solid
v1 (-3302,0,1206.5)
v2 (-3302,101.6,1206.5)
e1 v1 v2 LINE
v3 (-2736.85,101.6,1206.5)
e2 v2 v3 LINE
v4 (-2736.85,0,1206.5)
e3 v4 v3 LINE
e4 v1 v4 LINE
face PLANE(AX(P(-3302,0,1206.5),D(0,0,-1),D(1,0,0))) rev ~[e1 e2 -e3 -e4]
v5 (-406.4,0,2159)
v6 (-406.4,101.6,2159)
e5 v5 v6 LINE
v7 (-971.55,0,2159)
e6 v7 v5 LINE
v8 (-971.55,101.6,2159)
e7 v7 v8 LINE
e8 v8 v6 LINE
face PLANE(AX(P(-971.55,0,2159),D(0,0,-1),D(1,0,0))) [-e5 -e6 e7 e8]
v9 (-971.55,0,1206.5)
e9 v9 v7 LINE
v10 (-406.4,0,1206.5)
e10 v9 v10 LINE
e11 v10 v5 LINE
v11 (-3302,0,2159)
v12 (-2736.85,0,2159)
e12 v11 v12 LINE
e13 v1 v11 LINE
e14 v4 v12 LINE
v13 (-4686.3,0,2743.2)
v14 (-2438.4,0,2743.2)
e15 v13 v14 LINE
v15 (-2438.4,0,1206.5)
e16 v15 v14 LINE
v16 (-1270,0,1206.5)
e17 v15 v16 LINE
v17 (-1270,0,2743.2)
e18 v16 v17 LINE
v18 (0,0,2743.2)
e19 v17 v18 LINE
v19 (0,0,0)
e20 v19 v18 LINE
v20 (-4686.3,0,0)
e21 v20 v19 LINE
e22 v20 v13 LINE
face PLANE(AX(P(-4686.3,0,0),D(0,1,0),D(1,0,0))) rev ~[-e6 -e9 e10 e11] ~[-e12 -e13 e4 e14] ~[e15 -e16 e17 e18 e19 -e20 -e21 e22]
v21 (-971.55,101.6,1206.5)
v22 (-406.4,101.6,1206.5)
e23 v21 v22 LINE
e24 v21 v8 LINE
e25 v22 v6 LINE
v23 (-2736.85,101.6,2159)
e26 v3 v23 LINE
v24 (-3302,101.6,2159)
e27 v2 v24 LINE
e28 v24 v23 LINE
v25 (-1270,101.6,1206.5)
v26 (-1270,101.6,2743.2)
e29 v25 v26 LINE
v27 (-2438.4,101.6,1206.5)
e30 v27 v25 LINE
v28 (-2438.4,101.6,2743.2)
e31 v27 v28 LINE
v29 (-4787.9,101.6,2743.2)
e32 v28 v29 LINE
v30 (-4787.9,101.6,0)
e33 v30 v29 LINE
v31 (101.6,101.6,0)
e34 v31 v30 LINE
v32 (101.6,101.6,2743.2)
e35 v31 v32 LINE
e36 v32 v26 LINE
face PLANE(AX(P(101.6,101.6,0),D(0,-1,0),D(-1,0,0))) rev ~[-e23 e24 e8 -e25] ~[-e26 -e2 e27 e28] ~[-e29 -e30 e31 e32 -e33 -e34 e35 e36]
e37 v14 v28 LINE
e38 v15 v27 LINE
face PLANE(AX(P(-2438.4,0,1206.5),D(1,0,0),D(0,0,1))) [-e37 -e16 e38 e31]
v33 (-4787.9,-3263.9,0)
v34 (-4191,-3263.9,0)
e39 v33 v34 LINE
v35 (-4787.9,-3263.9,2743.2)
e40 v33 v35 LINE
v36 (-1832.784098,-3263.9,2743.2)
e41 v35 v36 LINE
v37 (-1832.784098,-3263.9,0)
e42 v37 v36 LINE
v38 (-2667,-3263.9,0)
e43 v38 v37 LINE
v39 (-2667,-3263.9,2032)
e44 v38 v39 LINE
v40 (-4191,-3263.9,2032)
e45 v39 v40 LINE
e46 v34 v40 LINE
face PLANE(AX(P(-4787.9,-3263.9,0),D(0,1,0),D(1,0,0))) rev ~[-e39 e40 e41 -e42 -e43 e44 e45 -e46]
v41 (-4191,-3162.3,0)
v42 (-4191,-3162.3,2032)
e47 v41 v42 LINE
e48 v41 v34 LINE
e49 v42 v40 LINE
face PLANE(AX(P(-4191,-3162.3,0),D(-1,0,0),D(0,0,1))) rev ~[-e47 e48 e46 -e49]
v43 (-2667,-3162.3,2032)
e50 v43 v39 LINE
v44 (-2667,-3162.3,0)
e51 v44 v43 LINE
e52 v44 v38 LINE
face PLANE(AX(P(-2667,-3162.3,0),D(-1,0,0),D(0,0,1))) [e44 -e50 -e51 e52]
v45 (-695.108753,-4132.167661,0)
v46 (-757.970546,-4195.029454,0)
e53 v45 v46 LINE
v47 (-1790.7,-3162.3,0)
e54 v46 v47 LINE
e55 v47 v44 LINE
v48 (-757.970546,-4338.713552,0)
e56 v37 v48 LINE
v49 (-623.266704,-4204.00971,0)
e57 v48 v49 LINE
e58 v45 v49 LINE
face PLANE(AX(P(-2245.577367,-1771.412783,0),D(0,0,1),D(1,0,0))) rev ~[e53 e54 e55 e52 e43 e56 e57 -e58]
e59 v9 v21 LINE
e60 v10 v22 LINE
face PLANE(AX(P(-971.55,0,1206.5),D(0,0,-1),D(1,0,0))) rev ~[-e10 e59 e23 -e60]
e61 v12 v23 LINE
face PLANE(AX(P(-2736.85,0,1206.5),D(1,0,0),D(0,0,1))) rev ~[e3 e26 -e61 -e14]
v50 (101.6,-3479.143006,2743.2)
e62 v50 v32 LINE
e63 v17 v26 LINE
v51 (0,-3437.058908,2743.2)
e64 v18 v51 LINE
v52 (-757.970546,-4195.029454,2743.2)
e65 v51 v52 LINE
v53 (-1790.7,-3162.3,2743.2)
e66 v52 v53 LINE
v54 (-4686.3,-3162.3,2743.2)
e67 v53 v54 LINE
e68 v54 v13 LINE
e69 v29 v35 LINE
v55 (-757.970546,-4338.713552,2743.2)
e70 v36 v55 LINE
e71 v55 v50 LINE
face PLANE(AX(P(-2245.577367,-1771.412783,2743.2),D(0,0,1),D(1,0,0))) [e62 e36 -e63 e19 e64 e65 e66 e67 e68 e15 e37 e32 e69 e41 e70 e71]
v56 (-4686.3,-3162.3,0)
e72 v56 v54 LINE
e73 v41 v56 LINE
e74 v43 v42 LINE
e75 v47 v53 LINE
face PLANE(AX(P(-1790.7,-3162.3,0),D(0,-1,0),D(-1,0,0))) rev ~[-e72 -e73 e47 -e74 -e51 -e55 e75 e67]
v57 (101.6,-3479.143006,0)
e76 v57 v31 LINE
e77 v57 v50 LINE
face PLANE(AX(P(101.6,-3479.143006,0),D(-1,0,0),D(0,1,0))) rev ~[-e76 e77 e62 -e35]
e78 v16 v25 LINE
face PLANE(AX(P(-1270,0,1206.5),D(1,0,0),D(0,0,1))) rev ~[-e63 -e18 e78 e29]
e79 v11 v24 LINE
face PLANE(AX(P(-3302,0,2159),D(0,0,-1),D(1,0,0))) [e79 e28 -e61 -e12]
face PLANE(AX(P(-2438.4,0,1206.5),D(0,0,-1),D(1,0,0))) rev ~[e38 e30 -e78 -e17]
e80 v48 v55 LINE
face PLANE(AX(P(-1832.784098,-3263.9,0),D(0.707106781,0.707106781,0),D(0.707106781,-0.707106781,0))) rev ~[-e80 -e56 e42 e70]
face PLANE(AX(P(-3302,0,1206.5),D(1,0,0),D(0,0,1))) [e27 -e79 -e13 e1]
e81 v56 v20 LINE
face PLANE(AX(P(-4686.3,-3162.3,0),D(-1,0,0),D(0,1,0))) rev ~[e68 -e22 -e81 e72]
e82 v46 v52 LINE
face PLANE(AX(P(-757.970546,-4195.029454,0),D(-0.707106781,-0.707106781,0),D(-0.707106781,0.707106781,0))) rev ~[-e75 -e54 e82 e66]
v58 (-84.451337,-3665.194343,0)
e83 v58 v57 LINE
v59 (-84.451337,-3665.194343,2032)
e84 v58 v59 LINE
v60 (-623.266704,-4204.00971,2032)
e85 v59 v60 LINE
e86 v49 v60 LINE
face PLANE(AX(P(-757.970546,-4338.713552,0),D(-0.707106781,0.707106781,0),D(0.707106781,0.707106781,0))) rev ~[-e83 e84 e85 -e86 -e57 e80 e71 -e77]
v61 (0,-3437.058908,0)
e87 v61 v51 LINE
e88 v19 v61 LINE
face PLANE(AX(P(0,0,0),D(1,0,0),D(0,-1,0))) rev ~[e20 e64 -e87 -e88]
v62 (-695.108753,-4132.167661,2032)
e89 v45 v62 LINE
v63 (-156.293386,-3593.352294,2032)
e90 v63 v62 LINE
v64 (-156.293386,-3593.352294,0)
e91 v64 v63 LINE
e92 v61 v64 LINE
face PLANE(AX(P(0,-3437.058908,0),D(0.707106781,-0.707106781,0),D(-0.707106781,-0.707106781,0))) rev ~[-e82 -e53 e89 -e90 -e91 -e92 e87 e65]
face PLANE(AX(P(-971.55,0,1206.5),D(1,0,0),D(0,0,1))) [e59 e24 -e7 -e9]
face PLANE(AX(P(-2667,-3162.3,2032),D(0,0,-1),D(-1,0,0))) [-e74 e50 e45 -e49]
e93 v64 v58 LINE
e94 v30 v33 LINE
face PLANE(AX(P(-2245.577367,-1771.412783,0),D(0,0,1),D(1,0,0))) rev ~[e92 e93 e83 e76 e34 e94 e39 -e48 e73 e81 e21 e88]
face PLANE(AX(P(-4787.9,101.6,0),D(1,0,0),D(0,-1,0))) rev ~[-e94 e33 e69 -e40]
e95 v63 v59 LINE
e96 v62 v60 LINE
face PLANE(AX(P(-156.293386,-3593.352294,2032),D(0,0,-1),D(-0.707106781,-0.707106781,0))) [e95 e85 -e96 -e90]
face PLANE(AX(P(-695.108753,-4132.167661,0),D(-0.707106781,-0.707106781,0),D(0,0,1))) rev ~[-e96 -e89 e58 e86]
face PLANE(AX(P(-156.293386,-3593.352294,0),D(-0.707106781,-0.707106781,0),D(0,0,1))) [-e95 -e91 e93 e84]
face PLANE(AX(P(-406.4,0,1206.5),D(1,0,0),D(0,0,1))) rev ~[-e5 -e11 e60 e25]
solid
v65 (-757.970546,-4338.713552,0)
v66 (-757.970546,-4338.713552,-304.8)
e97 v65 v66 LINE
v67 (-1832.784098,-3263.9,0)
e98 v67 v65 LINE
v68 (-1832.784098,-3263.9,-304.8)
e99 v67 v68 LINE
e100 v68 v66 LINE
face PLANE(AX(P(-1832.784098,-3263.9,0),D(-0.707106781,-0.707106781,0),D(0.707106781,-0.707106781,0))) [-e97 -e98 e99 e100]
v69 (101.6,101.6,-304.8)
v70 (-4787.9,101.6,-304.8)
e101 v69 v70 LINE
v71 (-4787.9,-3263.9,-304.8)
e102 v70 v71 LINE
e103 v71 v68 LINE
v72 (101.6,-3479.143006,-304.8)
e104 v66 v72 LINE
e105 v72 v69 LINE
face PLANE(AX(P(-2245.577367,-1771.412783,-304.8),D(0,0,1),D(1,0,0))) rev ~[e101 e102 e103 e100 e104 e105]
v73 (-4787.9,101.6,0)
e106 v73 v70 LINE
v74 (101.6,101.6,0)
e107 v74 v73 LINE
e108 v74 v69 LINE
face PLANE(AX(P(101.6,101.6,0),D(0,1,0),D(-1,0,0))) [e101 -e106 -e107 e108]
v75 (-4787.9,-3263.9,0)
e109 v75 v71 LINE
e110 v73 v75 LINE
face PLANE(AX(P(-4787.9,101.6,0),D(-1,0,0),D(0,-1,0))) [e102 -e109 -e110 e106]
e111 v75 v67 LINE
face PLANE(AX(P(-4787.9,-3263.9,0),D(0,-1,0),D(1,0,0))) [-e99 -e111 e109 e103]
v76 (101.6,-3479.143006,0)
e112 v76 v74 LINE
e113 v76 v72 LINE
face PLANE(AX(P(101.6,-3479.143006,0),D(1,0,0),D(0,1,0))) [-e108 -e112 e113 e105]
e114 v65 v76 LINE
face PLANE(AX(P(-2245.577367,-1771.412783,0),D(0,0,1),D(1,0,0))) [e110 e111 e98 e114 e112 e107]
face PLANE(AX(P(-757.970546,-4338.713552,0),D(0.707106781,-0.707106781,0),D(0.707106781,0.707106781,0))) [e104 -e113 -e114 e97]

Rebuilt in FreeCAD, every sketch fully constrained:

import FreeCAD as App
import Part
import Sketcher
Q = App.Units.Quantity


def add_polygon(sketch, points):
    """Adds a closed chain of lines whose ends are joined by coincident constraints."""
    first, n = sketch.GeometryCount, len(points)
    for a, b in zip(points, points[1:] + points[:1]):
        sketch.addGeometry(Part.LineSegment(App.Vector(*a, 0), App.Vector(*b, 0)), False)
    for i in range(n):
        sketch.addConstraint(Sketcher.Constraint("Coincident", first + i, 2, first + (i + 1) % n, 1))

doc = App.newDocument("Part")
params = doc.addObject("Spreadsheet::Sheet", "Params")
for row, (alias, value) in enumerate([
    ("sketch1_width", "114 in"),
    ("sketch1_width2", "192.5 in"),
    ("sketch1_width3", "184.5 in"),
    ("sketch1_height", "132.5 in"),
    ("sketch1_height2", "124.5 in"),
    ("pad1_length", "108 in"),
    ("sketch2_width", "30 in"),
    ("sketch2_height", "79.9999999 in"),
    ("sketch3_width", "60 in"),
    ("sketch3_height", "80 in"),
    ("sketch4_width", "46 in"),
    ("sketch4_height", "37.5 in"),
    ("sketch4_height2", "60.5 in"),
    ("sketch4_width2", "22.25 in"),
    ("sketch5_width", "192.5 in"),
    ("sketch5_height", "132.5 in"),
    ("pad2_length", "12 in"),
], start=1):
    params.set(f"A{row}", alias)
    params.set(f"B{row}", "=" + value)
    params.setAlias(f"B{row}", alias)

body = doc.addObject("PartDesign::Body", "Body")

# Sketch on XY plane
sketch1 = body.newObject("Sketcher::SketchObject", "Sketch")
sketch1.AttachmentSupport = (doc.getObject("XY_Plane"), [""])
sketch1.MapMode = "FlatFace"
add_polygon(sketch1, [(102, 102), (-4788, 102), (-4788, -3264), (-1833, -3264), (-758, -4339), (102, -3479)])  # lines 0-5
add_polygon(sketch1, [(-4686, -3162), (-4686, 0), (0, 0), (0, -3437), (-758, -4195), (-1791, -3162)])  # lines 6-11
sketch1.addConstraint([
    Sketcher.Constraint("Horizontal", 0),
    Sketcher.Constraint("Vertical", 1),
    Sketcher.Constraint("Horizontal", 2),
    Sketcher.Constraint("Vertical", 5),
    Sketcher.Constraint("Vertical", 6),
    Sketcher.Constraint("Horizontal", 7),
    Sketcher.Constraint("Vertical", 8),
    Sketcher.Constraint("Horizontal", 11),
    Sketcher.Constraint("Coincident", 7, 2, -1, 1),
    Sketcher.Constraint("Perpendicular", 3, 4),
    Sketcher.Constraint("Parallel", 4, 9),
    Sketcher.Constraint("Perpendicular", 9, 10),
    Sketcher.Constraint("Vertical", 3, 2, 9, 2),
    Sketcher.Constraint("DistanceX", 11, 2, 11, 1, Q("114 in")),
    Sketcher.Constraint("DistanceX", 0, 2, 0, 1, Q("192.5 in")),
    Sketcher.Constraint("DistanceX", 7, 1, 7, 2, Q("184.5 in")),
    Sketcher.Constraint("DistanceY", 1, 2, 1, 1, Q("132.5 in")),
    Sketcher.Constraint("DistanceY", 6, 1, 6, 2, Q("124.5 in")),
    Sketcher.Constraint("DistanceY", -1, 1, 0, 2, Q("4 in")),
    Sketcher.Constraint("DistanceX", -1, 1, 4, 2, Q("4 in")),
    Sketcher.Constraint("Angle", 3, Q("-45 deg")),
    Sketcher.Constraint("Distance", 10, Q("57.5 in")),
    Sketcher.Constraint("DistanceX", 2, 1, 2, 2, 2955.115902),
])
sketch1.setExpression("Constraints[25]", "Params.sketch1_width")
sketch1.setExpression("Constraints[26]", "Params.sketch1_width2")
sketch1.setExpression("Constraints[27]", "Params.sketch1_width3")
sketch1.setExpression("Constraints[28]", "Params.sketch1_height")
sketch1.setExpression("Constraints[29]", "Params.sketch1_height2")
pad1 = body.newObject("PartDesign::Pad", "Pad")
pad1.Profile = sketch1
pad1.setExpression("Length", "Params.pad1_length")

# Sketch on an angled plane
sketch2 = body.newObject("Sketcher::SketchObject", "Sketch001")
sketch2.Placement = App.Placement(App.Vector(1718.529454, -1718.529454, 0), App.Rotation(App.Vector(-0.707106781, -0.707106781, 0), App.Vector(0, 0, 0.999999999), App.Vector(-0.707106781, 0.707106781, 0), "ZXY"))
add_polygon(sketch2, [(2651, 2032), (2651, 0), (3413, 0), (3413, 2032)])  # lines 0-3
sketch2.addConstraint([
    Sketcher.Constraint("Vertical", 0),
    Sketcher.Constraint("Horizontal", 1),
    Sketcher.Constraint("Vertical", 2),
    Sketcher.Constraint("Horizontal", 3),
    Sketcher.Constraint("PointOnObject", 0, 2, -1),
    Sketcher.Constraint("DistanceX", 1, 1, 1, 2, Q("30 in")),
    Sketcher.Constraint("DistanceY", 0, 2, 0, 1, Q("79.9999999 in")),
    Sketcher.Constraint("DistanceX", -1, 1, 0, 2, 2651.399886),
])
sketch2.setExpression("Constraints[9]", "Params.sketch2_width")
sketch2.setExpression("Constraints[10]", "Params.sketch2_height")
pocket1 = body.newObject("PartDesign::Pocket", "Pocket")
pocket1.Profile = sketch2
pocket1.Type = "ThroughAll"

# Sketch on XZ plane
sketch3 = body.newObject("Sketcher::SketchObject", "Sketch002")
sketch3.AttachmentSupport = (doc.getObject("XZ_Plane"), [""])
sketch3.MapMode = "FlatFace"
sketch3.AttachmentOffset = App.Placement(App.Vector(0, 0, 124.5 * 25.4), App.Rotation())
add_polygon(sketch3, [(-2667, 2032), (-2667, 0), (-4191, 0), (-4191, 2032)])  # lines 0-3
sketch3.addConstraint([
    Sketcher.Constraint("Vertical", 0),
    Sketcher.Constraint("Horizontal", 1),
    Sketcher.Constraint("Vertical", 2),
    Sketcher.Constraint("Horizontal", 3),
    Sketcher.Constraint("PointOnObject", 0, 2, -1),
    Sketcher.Constraint("DistanceX", 1, 2, 1, 1, Q("60 in")),
    Sketcher.Constraint("DistanceY", 0, 2, 0, 1, Q("80 in")),
    Sketcher.Constraint("DistanceX", 0, 2, -1, 1, Q("105 in")),
])
sketch3.setExpression("Constraints[9]", "Params.sketch3_width")
sketch3.setExpression("Constraints[10]", "Params.sketch3_height")
pocket2 = body.newObject("PartDesign::Pocket", "Pocket001")
pocket2.Profile = sketch3
pocket2.Type = "ThroughAll"
pocket2.Reversed = True

# Sketch on XZ plane
sketch4 = body.newObject("Sketcher::SketchObject", "Sketch003")
sketch4.AttachmentSupport = (doc.getObject("XZ_Plane"), [""])
sketch4.MapMode = "FlatFace"
add_polygon(sketch4, [(-3302, 2159), (-3302, 1206), (-2737, 1206), (-2737, 2159)])  # lines 0-3
add_polygon(sketch4, [(-2438, 2743), (-2438, 1206), (-1270, 1206), (-1270, 2743)])  # lines 4-7
add_polygon(sketch4, [(-972, 2159), (-972, 1206), (-406, 1206), (-406, 2159)])  # lines 8-11
sketch4.addConstraint([
    Sketcher.Constraint("Vertical", 0),
    Sketcher.Constraint("Horizontal", 1),
    Sketcher.Constraint("Vertical", 2),
    Sketcher.Constraint("Horizontal", 3),
    Sketcher.Constraint("Vertical", 4),
    Sketcher.Constraint("Horizontal", 5),
    Sketcher.Constraint("Vertical", 6),
    Sketcher.Constraint("Horizontal", 7),
    Sketcher.Constraint("Vertical", 8),
    Sketcher.Constraint("Horizontal", 9),
    Sketcher.Constraint("Vertical", 10),
    Sketcher.Constraint("Horizontal", 11),
    Sketcher.Constraint("Horizontal", 1, 2, 4, 2),
    Sketcher.Constraint("Horizontal", 5, 2, 8, 2),
    Sketcher.Constraint("Horizontal", 3, 2, 10, 2),
    Sketcher.Constraint("Equal", 3, 9),
    Sketcher.Constraint("DistanceX", 5, 1, 5, 2, Q("46 in")),
    Sketcher.Constraint("DistanceY", 0, 2, 0, 1, Q("37.5 in")),
    Sketcher.Constraint("DistanceY", 4, 2, 4, 1, Q("60.5 in")),
    Sketcher.Constraint("DistanceX", 0, 2, -1, 1, Q("130 in")),
    Sketcher.Constraint("DistanceY", -1, 1, 2, 2, Q("85 in")),
    Sketcher.Constraint("DistanceX", 4, 2, -1, 1, Q("96 in")),
    Sketcher.Constraint("DistanceX", 9, 2, -1, 1, Q("16 in")),
    Sketcher.Constraint("DistanceX", 1, 1, 1, 2, Q("22.25 in")),
])
sketch4.setExpression("Constraints[28]", "Params.sketch4_width")
sketch4.setExpression("Constraints[29]", "Params.sketch4_height")
sketch4.setExpression("Constraints[30]", "Params.sketch4_height2")
sketch4.setExpression("Constraints[35]", "Params.sketch4_width2")
pocket3 = body.newObject("PartDesign::Pocket", "Pocket002")
pocket3.Profile = sketch4
pocket3.Type = "ThroughAll"
body2 = doc.addObject("PartDesign::Body", "Body001")

# Sketch on XY plane
sketch5 = body2.newObject("Sketcher::SketchObject", "Sketch004")
sketch5.AttachmentSupport = (doc.getObject("XY_Plane001"), [""])
sketch5.MapMode = "FlatFace"
add_polygon(sketch5, [(102, -3479), (102, 102), (-4788, 102), (-4788, -3264), (-1833, -3264), (-758, -4339)])  # lines 0-5
sketch5.addConstraint([
    Sketcher.Constraint("Vertical", 0),
    Sketcher.Constraint("Horizontal", 1),
    Sketcher.Constraint("Vertical", 2),
    Sketcher.Constraint("Horizontal", 3),
    Sketcher.Constraint("Perpendicular", 4, 5),
    Sketcher.Constraint("DistanceX", 1, 2, 1, 1, Q("192.5 in")),
    Sketcher.Constraint("DistanceY", 2, 2, 2, 1, Q("132.5 in")),
    Sketcher.Constraint("DistanceX", -1, 1, 0, 2, Q("4 in")),
    Sketcher.Constraint("DistanceY", -1, 1, 0, 2, Q("4 in")),
    Sketcher.Constraint("Angle", 4, Q("-45 deg")),
    Sketcher.Constraint("DistanceX", 3, 1, 3, 2, 2955.115902),
    Sketcher.Constraint("DistanceY", 0, 1, 0, 2, 3580.743006),
])
sketch5.setExpression("Constraints[11]", "Params.sketch5_width")
sketch5.setExpression("Constraints[12]", "Params.sketch5_height")
pad2 = body2.newObject("PartDesign::Pad", "Pad001")
pad2.Profile = sketch5
pad2.setExpression("Length", "Params.pad2_length")
pad2.Reversed = True

doc.recompute()
